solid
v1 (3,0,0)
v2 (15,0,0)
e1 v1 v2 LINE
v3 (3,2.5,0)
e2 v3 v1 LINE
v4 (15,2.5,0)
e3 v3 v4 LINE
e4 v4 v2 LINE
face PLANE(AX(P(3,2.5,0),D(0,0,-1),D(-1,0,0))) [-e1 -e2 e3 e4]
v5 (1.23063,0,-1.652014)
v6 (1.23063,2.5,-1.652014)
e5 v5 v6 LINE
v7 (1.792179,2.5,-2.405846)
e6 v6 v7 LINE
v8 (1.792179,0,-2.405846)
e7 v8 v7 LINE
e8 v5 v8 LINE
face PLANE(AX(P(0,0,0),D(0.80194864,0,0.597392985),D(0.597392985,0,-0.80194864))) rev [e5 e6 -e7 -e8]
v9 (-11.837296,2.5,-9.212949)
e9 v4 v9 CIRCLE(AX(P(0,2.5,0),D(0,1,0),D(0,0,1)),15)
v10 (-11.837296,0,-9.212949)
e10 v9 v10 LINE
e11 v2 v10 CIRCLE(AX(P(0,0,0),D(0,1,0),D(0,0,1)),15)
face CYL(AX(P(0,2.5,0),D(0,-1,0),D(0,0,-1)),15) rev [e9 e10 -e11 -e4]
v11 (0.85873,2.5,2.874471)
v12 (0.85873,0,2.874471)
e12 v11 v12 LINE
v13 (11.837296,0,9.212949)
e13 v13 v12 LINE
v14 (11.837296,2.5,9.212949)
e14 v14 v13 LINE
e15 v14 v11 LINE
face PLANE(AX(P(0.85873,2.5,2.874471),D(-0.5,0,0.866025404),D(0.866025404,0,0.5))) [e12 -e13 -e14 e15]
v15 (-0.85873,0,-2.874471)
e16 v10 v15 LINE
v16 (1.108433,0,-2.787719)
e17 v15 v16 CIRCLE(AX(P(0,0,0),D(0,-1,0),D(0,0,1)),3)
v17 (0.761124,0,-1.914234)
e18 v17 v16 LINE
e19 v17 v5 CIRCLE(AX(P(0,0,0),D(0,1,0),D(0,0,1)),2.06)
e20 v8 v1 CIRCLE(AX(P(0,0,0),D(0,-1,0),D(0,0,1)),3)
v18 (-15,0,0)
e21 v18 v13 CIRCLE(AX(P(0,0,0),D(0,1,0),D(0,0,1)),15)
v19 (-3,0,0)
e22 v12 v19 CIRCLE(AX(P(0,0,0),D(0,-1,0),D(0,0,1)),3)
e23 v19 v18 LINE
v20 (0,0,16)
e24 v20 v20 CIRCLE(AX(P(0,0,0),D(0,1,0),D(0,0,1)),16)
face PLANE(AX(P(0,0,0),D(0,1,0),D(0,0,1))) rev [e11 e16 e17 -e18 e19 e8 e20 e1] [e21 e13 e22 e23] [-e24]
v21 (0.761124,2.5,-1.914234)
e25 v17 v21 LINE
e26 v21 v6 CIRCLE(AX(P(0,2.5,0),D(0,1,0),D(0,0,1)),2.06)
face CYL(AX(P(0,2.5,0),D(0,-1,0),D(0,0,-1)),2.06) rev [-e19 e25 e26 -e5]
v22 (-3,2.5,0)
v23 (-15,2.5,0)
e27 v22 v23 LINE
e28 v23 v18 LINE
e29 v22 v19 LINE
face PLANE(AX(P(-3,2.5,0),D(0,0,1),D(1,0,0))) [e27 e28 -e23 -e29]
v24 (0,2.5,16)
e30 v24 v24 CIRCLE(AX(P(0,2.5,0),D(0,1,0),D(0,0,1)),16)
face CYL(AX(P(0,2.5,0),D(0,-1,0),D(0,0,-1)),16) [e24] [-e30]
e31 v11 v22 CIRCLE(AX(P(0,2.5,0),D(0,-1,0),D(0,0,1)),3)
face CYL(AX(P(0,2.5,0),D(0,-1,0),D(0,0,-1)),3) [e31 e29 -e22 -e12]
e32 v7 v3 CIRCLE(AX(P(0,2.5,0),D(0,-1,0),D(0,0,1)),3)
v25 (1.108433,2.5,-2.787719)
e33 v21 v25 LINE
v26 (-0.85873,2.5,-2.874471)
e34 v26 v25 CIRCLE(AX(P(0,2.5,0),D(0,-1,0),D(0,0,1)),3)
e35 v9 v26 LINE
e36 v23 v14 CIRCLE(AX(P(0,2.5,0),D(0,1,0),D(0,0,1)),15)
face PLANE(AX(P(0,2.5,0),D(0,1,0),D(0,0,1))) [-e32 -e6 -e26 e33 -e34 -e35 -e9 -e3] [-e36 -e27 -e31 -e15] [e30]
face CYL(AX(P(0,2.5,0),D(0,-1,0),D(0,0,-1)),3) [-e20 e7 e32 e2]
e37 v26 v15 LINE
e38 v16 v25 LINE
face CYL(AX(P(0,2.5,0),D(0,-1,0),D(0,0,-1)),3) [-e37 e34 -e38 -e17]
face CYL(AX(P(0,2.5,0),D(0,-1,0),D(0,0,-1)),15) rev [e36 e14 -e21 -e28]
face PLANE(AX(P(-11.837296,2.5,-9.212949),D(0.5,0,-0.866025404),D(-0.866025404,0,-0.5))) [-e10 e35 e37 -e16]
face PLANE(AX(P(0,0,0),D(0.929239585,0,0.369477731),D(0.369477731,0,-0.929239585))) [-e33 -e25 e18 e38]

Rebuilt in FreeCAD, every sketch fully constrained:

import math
import FreeCAD as App
import Part
import Sketcher
from FreeCAD import Vector
Q = App.Units.Quantity

doc = App.newDocument("Part")
body = doc.addObject("PartDesign::Body", "Body")

# Sketch on XZ plane
sketch1 = body.newObject("Sketcher::SketchObject", "Sketch")
sketch1.AttachmentSupport = (doc.getObject("XZ_Plane"), [""])
sketch1.MapMode = "FlatFace"
sketch1.addGeometry([
    Part.Circle(Vector(0, 0, 0), Vector(0, 0, 1), 16),  # 0
    Part.LineSegment(Vector(-15, 0, 0), Vector(-3, 0, 0)),  # 1
    Part.ArcOfCircle(Part.Circle(Vector(0, 0, 0), Vector(0, 0, 1), 3), math.radians(73), math.radians(180)),  # 2
    Part.LineSegment(Vector(0.9, 2.9, 0), Vector(11.8, 9.2, 0)),  # 3
    Part.ArcOfCircle(Part.Circle(Vector(0, 0, 0), Vector(0, 0, 1), 15), math.radians(38), math.radians(180)),  # 4
    Part.LineSegment(Vector(-0.9, -2.9, 0), Vector(-11.8, -9.2, 0)),  # 5
    Part.ArcOfCircle(Part.Circle(Vector(0, 0, 0), Vector(0, 0, 1), 15), math.radians(-142), math.radians(0)),  # 6
    Part.LineSegment(Vector(15, 0, 0), Vector(3, 0, 0)),  # 7
    Part.ArcOfCircle(Part.Circle(Vector(0, 0, 0), Vector(0, 0, 1), 3), math.radians(-107), math.radians(0)),  # 8
    Part.Circle(Vector(0, 0, 0), Vector(0, 0, 1), 2.1),  # 9
], False)
sketch1.addConstraint([
    Sketcher.Constraint("Coincident", 1, 2, 2, 2),
    Sketcher.Constraint("Coincident", 2, 1, 3, 1),
    Sketcher.Constraint("Coincident", 3, 2, 4, 1),
    Sketcher.Constraint("Coincident", 4, 2, 1, 1),
    Sketcher.Constraint("Coincident", 5, 2, 6, 1),
    Sketcher.Constraint("Coincident", 6, 2, 7, 1),
    Sketcher.Constraint("Coincident", 7, 2, 8, 2),
    Sketcher.Constraint("Coincident", 8, 1, 5, 1),
    Sketcher.Constraint("Horizontal", 1),
    Sketcher.Constraint("Horizontal", 7),
    Sketcher.Constraint("Coincident", 0, 3, -1, 1),
    Sketcher.Constraint("Coincident", 2, 3, -1, 1),
    Sketcher.Constraint("Coincident", 4, 3, -1, 1),
    Sketcher.Constraint("Coincident", 6, 3, -1, 1),
    Sketcher.Constraint("Coincident", 8, 3, -1, 1),
    Sketcher.Constraint("Coincident", 9, 3, -1, 1),
    Sketcher.Constraint("Equal", 4, 6),
    Sketcher.Constraint("Equal", 2, 8),
    Sketcher.Constraint("PointOnObject", 1, 2, -1),
    Sketcher.Constraint("PointOnObject", 6, 2, -1),
    Sketcher.Constraint("Parallel", 3, 5),
    Sketcher.Constraint("Equal", 3, 5),
    Sketcher.Constraint("Diameter", 0, Q("32 mm")),
    Sketcher.Constraint("Radius", 2, Q("3 mm")),
    Sketcher.Constraint("Radius", 4, Q("15 mm")),
    Sketcher.Constraint("Diameter", 9, Q("4.12 mm")),
    Sketcher.Constraint("Angle", 3, Q("30 deg")),
    Sketcher.Constraint("DistanceX", -1, 1, 2, 1, Q("0.85873 mm")),
])
pad1 = body.newObject("PartDesign::Pad", "Pad")
pad1.Profile = sketch1
pad1.Length = 2.5
pad1.Reversed = True

# Sketch on XZ plane
sketch2 = body.newObject("Sketcher::SketchObject", "Sketch001")
sketch2.AttachmentSupport = (doc.getObject("XZ_Plane"), [""])
sketch2.MapMode = "FlatFace"
sketch2.AttachmentOffset = App.Placement(Vector(0, 0, -2.5), App.Rotation())
sketch2.addGeometry([
    Part.LineSegment(Vector(1.1, -2.8, 0), Vector(0.8, -1.9, 0)),
    Part.ArcOfCircle(Part.Circle(Vector(0, 0, 0), Vector(0, 0, 1), 2.1), math.radians(-68.32), math.radians(-53.32)),
    Part.LineSegment(Vector(1.2, -1.7, 0), Vector(1.8, -2.4, 0)),
    Part.ArcOfCircle(Part.Circle(Vector(0, 0, 0), Vector(0, 0, 1), 3), math.radians(-68.32), math.radians(-53.32)),
], False)
sketch2.addConstraint([
    Sketcher.Constraint("Coincident", 0, 2, 1, 1),
    Sketcher.Constraint("Coincident", 1, 2, 2, 1),
    Sketcher.Constraint("Coincident", 2, 2, 3, 2),
    Sketcher.Constraint("Coincident", 3, 1, 0, 1),
    Sketcher.Constraint("Coincident", 1, 3, -1, 1),
    Sketcher.Constraint("Coincident", 3, 3, -1, 1),
    Sketcher.Constraint("Radius", 3, Q("3 mm")),
    Sketcher.Constraint("Radius", 1, Q("2.06 mm")),
    Sketcher.Constraint("DistanceX", -1, 1, 1, 2, Q("1.23063 mm")),
    Sketcher.Constraint("DistanceX", -1, 1, 2, 2, Q("1.792179 mm")),
    Sketcher.Constraint("DistanceY", 3, 1, -1, 1, Q("2.787719 mm")),
    Sketcher.Constraint("DistanceY", 0, 2, 1, 2, Q("0.262219 mm")),
])
pocket1 = body.newObject("PartDesign::Pocket", "Pocket")
pocket1.Profile = sketch2
pocket1.Type = "ThroughAll"
pocket1.Reversed = True

doc.recompute()
